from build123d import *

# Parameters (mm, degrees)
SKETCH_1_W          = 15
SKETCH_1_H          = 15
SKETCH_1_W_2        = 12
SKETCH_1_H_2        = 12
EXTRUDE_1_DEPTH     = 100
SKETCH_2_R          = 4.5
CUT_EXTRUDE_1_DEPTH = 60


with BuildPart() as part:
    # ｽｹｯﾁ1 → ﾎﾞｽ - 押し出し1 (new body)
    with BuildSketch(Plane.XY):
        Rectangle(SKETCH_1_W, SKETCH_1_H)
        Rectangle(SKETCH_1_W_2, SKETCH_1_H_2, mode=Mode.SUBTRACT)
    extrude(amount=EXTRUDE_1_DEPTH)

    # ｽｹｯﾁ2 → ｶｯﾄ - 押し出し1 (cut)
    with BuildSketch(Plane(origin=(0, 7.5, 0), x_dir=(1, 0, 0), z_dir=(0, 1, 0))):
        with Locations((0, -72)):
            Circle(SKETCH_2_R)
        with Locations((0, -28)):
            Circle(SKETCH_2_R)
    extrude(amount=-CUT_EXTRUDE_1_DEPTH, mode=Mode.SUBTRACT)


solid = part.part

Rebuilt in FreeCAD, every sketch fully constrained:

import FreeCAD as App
import Part
import Sketcher
from FreeCAD import Vector
Q = App.Units.Quantity


def add_polygon(sketch, points):
    """Adds a closed chain of lines whose ends are joined by coincident constraints."""
    first, n = sketch.GeometryCount, len(points)
    for a, b in zip(points, points[1:] + points[:1]):
        sketch.addGeometry(Part.LineSegment(App.Vector(*a, 0), App.Vector(*b, 0)), False)
    for i in range(n):
        sketch.addConstraint(Sketcher.Constraint("Coincident", first + i, 2, first + (i + 1) % n, 1))

doc = App.newDocument("Part")
body = doc.addObject("PartDesign::Body", "Body")

# Sketch on XY plane
sketch1 = doc.addObject("Sketcher::SketchObject", "Sketch")
body.addObject(sketch1)
sketch1.AttachmentSupport = (doc.XY_Plane, [""])
sketch1.MapMode = "FlatFace"
add_polygon(sketch1, [(-8, 8), (-8, -8), (8, -8), (8, 8)])  # lines 0-3
add_polygon(sketch1, [(6, -6), (-6, -6), (-6, 6), (6, 6)])  # lines 4-7
sketch1.addConstraint(Sketcher.Constraint("Vertical", 0))
sketch1.addConstraint(Sketcher.Constraint("Horizontal", 1))
sketch1.addConstraint(Sketcher.Constraint("Vertical", 2))
sketch1.addConstraint(Sketcher.Constraint("Horizontal", 3))
sketch1.addConstraint(Sketcher.Constraint("Horizontal", 4))
sketch1.addConstraint(Sketcher.Constraint("Vertical", 5))
sketch1.addConstraint(Sketcher.Constraint("Horizontal", 6))
sketch1.addConstraint(Sketcher.Constraint("Vertical", 7))
sketch1.addConstraint(Sketcher.Constraint("Symmetric", 0, 2, 2, 2, -1, 1))
sketch1.addConstraint(Sketcher.Constraint("Symmetric", 4, 2, 6, 2, -1, 1))
sketch1.addConstraint(Sketcher.Constraint("Equal", 3, 0))
sketch1.addConstraint(Sketcher.Constraint("Equal", 6, 5))
sketch1.addConstraint(Sketcher.Constraint("DistanceX", 1, 1, 1, 2, Q("15 mm")))
sketch1.addConstraint(Sketcher.Constraint("DistanceX", 4, 2, 4, 1, Q("12 mm")))
pad1 = doc.addObject("PartDesign::Pad", "Pad")
body.addObject(pad1)
pad1.Profile = sketch1
pad1.Length = 100

# Sketch on XZ plane
sketch2 = doc.addObject("Sketcher::SketchObject", "Sketch001")
body.addObject(sketch2)
sketch2.AttachmentSupport = (doc.XZ_Plane, [""])
sketch2.MapMode = "FlatFace"
sketch2.AttachmentOffset = App.Placement(Vector(0, 0, -7.5), App.Rotation())
sketch2.addGeometry(Part.Circle(Vector(0, 72, 0), Vector(0, 0, 1), 4.5), False)
sketch2.addGeometry(Part.Circle(Vector(0, 28, 0), Vector(0, 0, 1), 4.5), False)
sketch2.addConstraint(Sketcher.Constraint("Equal", 0, 1))
sketch2.addConstraint(Sketcher.Constraint("PointOnObject", 0, 3, -2))
sketch2.addConstraint(Sketcher.Constraint("PointOnObject", 1, 3, -2))
sketch2.addConstraint(Sketcher.Constraint("Diameter", 0, Q("9 mm")))
sketch2.addConstraint(Sketcher.Constraint("DistanceY", -1, 1, 0, 3, Q("72 mm")))
sketch2.addConstraint(Sketcher.Constraint("DistanceY", -1, 1, 1, 3, Q("28 mm")))
pocket1 = doc.addObject("PartDesign::Pocket", "Pocket")
body.addObject(pocket1)
pocket1.Profile = sketch2
pocket1.Length = 60
pocket1.Reversed = True

doc.recompute()
